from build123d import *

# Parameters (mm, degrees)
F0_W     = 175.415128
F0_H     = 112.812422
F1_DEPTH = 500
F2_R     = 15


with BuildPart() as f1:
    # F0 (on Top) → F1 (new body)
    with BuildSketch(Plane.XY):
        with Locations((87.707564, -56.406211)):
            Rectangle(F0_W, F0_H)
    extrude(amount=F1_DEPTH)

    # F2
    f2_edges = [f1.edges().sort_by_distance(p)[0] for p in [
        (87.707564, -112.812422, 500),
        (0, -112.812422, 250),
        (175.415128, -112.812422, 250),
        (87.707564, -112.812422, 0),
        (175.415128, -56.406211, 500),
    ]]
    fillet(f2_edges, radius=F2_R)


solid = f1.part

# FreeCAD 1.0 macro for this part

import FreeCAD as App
import Part
import Sketcher
from FreeCAD import Vector


def edges_at(feature, points):
    """Names of the edges that pass closest to the given points."""
    edges = feature.Shape.Edges
    near = lambda p: min(range(len(edges)), key=lambda i: edges[i].distToShape(Part.Vertex(*p))[0])
    return sorted({f"Edge{near(p) + 1}" for p in points})


def add_polygon(sketch, points):
    """Adds a closed chain of lines whose ends are joined by coincident constraints."""
    first, n = sketch.GeometryCount, len(points)
    for a, b in zip(points, points[1:] + points[:1]):
        sketch.addGeometry(Part.LineSegment(App.Vector(*a, 0), App.Vector(*b, 0)), False)
    for i in range(n):
        sketch.addConstraint(Sketcher.Constraint("Coincident", first + i, 2, first + (i + 1) % n, 1))

doc = App.newDocument("Part")
body = doc.addObject("PartDesign::Body", "Body")

# Sketch on XY plane
sketch1 = body.newObject("Sketcher::SketchObject", "Sketch")
sketch1.AttachmentSupport = (doc.getObject("XY_Plane"), [""])
sketch1.MapMode = "FlatFace"
add_polygon(sketch1, [(0, 0), (0, -113), (175, -113), (175, 0)])  # lines 0-3
sketch1.addConstraint([
    Sketcher.Constraint("Vertical", 0),
    Sketcher.Constraint("Horizontal", 1),
    Sketcher.Constraint("Vertical", 2),
    Sketcher.Constraint("Horizontal", 3),
    Sketcher.Constraint("Coincident", 3, 2, -1, 1),
    Sketcher.Constraint("DistanceX", 1, 1, 1, 2, 175.415128),
    Sketcher.Constraint("DistanceY", 0, 2, 0, 1, 112.812422),
])
pad1 = body.newObject("PartDesign::Pad", "Pad")
pad1.Profile = sketch1
pad1.Length = 500
doc.recompute()

fillet = body.newObject("PartDesign::Fillet", "Fillet")
fillet.Base = (pad1, edges_at(pad1, [
    (87.708, -112.812, 500),
    (0, -112.812, 250),
    (175.415, -112.812, 250),
    (87.708, -112.812, 0),
    (175.415, -56.406, 500),
]))
fillet.Radius = 15

doc.recompute()
